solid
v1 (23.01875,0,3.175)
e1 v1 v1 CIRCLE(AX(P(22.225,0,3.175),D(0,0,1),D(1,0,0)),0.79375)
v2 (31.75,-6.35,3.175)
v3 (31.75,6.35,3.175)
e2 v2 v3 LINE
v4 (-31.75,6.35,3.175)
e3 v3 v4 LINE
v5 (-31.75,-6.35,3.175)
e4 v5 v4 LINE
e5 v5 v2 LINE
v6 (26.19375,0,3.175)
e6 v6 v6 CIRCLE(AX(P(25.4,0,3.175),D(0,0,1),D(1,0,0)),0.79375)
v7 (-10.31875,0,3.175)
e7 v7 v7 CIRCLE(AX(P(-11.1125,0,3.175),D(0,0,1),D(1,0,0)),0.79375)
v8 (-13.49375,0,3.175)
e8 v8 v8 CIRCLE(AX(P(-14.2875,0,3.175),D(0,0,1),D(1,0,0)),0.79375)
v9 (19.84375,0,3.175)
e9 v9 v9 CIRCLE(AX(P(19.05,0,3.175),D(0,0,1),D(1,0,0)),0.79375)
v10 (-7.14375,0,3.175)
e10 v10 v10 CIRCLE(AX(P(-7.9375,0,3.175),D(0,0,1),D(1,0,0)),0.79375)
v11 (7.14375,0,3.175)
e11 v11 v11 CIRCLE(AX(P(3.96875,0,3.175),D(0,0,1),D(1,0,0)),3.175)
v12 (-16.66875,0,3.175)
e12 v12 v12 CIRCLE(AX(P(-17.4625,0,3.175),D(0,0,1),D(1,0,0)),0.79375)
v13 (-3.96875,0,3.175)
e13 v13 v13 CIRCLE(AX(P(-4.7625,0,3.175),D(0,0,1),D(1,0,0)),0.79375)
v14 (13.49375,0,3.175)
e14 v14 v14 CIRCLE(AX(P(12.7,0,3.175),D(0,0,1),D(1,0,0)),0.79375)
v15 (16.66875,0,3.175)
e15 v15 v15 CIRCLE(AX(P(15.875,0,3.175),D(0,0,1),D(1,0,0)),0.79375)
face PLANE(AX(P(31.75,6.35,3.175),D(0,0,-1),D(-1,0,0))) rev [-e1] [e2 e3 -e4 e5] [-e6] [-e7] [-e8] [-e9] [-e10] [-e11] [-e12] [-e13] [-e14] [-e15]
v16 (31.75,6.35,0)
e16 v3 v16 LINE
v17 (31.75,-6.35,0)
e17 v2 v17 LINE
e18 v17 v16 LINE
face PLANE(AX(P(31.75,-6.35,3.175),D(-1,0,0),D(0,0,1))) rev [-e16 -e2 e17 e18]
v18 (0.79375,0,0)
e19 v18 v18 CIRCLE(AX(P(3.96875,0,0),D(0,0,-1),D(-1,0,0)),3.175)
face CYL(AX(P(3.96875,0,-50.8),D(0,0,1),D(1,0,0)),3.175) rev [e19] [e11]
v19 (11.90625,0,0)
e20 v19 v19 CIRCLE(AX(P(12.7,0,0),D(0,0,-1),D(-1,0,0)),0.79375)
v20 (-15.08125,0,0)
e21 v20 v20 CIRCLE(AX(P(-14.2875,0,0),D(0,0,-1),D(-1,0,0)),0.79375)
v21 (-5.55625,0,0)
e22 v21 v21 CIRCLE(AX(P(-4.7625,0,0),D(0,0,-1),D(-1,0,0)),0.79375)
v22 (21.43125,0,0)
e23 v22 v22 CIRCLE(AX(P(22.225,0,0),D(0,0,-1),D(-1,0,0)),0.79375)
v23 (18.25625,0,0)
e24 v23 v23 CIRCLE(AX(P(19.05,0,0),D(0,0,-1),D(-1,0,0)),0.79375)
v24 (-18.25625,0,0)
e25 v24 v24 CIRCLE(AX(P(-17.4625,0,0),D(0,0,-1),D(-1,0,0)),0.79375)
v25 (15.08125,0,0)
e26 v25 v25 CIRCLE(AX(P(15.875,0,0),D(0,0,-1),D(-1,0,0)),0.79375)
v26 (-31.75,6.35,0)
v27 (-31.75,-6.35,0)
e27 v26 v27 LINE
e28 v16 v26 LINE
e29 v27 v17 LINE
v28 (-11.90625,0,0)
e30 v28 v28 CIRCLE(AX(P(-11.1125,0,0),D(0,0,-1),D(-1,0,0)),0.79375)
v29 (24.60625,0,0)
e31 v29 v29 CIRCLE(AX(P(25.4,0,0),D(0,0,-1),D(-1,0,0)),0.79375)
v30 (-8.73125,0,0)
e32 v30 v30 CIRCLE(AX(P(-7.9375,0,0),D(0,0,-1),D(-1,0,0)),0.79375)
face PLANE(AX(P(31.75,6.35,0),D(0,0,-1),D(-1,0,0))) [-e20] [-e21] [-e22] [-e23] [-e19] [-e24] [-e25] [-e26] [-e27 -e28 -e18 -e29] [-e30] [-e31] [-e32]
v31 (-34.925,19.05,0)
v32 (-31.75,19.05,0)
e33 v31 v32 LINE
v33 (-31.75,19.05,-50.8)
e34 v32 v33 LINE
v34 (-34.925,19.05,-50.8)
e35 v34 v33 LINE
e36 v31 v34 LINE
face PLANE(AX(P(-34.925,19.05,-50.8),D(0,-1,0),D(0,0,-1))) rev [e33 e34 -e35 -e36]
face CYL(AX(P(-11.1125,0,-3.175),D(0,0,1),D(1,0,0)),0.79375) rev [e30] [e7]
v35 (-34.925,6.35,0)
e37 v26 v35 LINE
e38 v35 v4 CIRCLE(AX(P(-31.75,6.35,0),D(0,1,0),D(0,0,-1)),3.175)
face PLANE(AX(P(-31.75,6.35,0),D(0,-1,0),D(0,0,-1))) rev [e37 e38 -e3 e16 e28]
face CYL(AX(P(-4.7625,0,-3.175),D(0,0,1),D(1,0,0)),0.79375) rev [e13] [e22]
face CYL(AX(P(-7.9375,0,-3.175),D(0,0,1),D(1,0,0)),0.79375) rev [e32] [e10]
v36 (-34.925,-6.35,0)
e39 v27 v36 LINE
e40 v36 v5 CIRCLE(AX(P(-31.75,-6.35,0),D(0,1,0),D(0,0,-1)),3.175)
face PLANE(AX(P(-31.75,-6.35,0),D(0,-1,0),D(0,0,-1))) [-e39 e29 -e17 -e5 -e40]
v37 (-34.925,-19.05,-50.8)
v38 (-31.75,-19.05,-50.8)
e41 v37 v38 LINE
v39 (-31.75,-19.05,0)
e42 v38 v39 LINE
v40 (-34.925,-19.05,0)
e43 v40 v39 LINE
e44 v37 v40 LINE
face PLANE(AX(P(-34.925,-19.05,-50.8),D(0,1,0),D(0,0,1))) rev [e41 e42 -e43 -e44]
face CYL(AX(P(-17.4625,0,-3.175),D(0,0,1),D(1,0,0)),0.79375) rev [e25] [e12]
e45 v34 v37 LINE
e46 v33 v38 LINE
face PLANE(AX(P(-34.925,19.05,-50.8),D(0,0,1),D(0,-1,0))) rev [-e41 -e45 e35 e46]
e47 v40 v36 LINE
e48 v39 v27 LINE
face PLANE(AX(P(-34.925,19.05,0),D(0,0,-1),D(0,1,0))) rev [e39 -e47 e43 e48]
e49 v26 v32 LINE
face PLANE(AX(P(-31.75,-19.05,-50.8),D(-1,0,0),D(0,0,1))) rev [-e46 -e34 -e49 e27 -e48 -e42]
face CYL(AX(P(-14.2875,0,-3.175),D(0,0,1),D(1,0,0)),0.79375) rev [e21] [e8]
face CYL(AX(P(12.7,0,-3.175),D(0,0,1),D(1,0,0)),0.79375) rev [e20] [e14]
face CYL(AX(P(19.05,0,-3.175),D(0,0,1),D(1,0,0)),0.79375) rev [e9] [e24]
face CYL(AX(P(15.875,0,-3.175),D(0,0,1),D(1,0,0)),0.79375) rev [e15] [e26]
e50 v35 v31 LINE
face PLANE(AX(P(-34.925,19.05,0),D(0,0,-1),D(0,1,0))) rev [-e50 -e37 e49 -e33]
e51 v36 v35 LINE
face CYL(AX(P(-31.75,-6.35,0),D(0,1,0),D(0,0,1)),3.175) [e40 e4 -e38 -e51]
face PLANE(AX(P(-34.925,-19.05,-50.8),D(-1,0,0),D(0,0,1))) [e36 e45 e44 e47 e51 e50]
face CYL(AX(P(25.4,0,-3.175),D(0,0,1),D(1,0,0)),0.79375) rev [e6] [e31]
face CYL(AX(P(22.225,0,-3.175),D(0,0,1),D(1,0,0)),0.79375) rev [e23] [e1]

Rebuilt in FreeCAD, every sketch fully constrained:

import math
import FreeCAD as App
import Part
import Sketcher

V = App.Vector
Q = App.Units.Quantity


def add_polygon(sketch, points):
    """Adds a closed chain of lines whose ends are joined by coincident constraints."""
    first, n = sketch.GeometryCount, len(points)
    for a, b in zip(points, points[1:] + points[:1]):
        sketch.addGeometry(Part.LineSegment(App.Vector(*a, 0), App.Vector(*b, 0)), False)
    for i in range(n):
        sketch.addConstraint(Sketcher.Constraint("Coincident", first + i, 2, first + (i + 1) % n, 1))

doc = App.newDocument("Part")
body = doc.addObject("PartDesign::Body", "Body")

# Sketch on XY plane
sketch1 = body.newObject("Sketcher::SketchObject", "Sketch")
sketch1.AttachmentSupport = (doc.getObject("XY_Plane"), [""])
sketch1.MapMode = "FlatFace"
add_polygon(sketch1, [(-32, 6), (-32, -6), (32, -6), (32, 6)])  # lines 0-3
sketch1.addConstraint(Sketcher.Constraint("Vertical", 0))
sketch1.addConstraint(Sketcher.Constraint("Horizontal", 1))
sketch1.addConstraint(Sketcher.Constraint("Vertical", 2))
sketch1.addConstraint(Sketcher.Constraint("Horizontal", 3))
sketch1.addConstraint(Sketcher.Constraint("Symmetric", 0, 2, 2, 2, -1, 1))
sketch1.addConstraint(Sketcher.Constraint("DistanceX", 1, 1, 1, 2, Q("2.5 in")))
sketch1.addConstraint(Sketcher.Constraint("DistanceY", 0, 2, 0, 1, Q("0.5 in")))
pad1 = body.newObject("PartDesign::Pad", "Pad")
pad1.Profile = sketch1
pad1.Length = Q("0.125 in")
body2 = doc.addObject("PartDesign::Body", "Body001")

# Sketch on YZ plane
sketch2 = body2.newObject("Sketcher::SketchObject", "Sketch001")
sketch2.AttachmentSupport = (doc.getObject("YZ_Plane001"), [""])
sketch2.MapMode = "FlatFace"
sketch2.AttachmentOffset = App.Placement(V(0, 0, -1.25 * 25.4), App.Rotation())
add_polygon(sketch2, [(19, -51), (-19, -51), (-19, 0), (19, 0)])  # lines 0-3
sketch2.addConstraint(Sketcher.Constraint("Horizontal", 0))
sketch2.addConstraint(Sketcher.Constraint("Vertical", 1))
sketch2.addConstraint(Sketcher.Constraint("Horizontal", 2))
sketch2.addConstraint(Sketcher.Constraint("Vertical", 3))
sketch2.addConstraint(Sketcher.Constraint("Symmetric", 1, 2, 2, 2, -1, 1))
sketch2.addConstraint(Sketcher.Constraint("DistanceY", 1, 1, 1, 2, Q("2 in")))
sketch2.addConstraint(Sketcher.Constraint("DistanceX", 0, 2, 0, 1, Q("1.5 in")))
pad2 = body2.newObject("PartDesign::Pad", "Pad001")
pad2.Profile = sketch2
pad2.Length = Q("0.125 in")
pad2.Reversed = True
body.AllowCompound = True
doc.recompute()

boolean = body.newObject("PartDesign::Boolean", "Boolean")
boolean.Type = "Fuse"
boolean.addObjects([body2])

# Sketch on XZ plane
sketch3 = body.newObject("Sketcher::SketchObject", "Sketch002")
sketch3.AttachmentSupport = (doc.getObject("XZ_Plane"), [""])
sketch3.MapMode = "FlatFace"
sketch3.AttachmentOffset = App.Placement(V(0, 0, -0.25 * 25.4), App.Rotation())
sketch3.addGeometry(Part.LineSegment(V(-31.8, 0, 0), V(-34.9, 0, 0)), False)
sketch3.addGeometry(Part.ArcOfCircle(Part.Circle(V(-31.7, 0, 0), V(0, 0, 1), 3.2), math.radians(90), math.radians(180)), False)
sketch3.addGeometry(Part.LineSegment(V(-31.8, 3.2, 0), V(-31.8, 0, 0)), False)
sketch3.addConstraint(Sketcher.Constraint("Coincident", 0, 2, 1, 2))
sketch3.addConstraint(Sketcher.Constraint("Coincident", 1, 1, 2, 1))
sketch3.addConstraint(Sketcher.Constraint("Coincident", 2, 2, 0, 1))
sketch3.addConstraint(Sketcher.Constraint("Horizontal", 0))
sketch3.addConstraint(Sketcher.Constraint("Vertical", 2))
sketch3.addConstraint(Sketcher.Constraint("Coincident", 2, 2, 1, 3))
sketch3.addConstraint(Sketcher.Constraint("PointOnObject", 1, 3, -1))
sketch3.addConstraint(Sketcher.Constraint("Radius", 1, Q("0.125 in")))
sketch3.addConstraint(Sketcher.Constraint("DistanceX", 1, 3, -1, 1, Q("1.25 in")))
pad3 = body.newObject("PartDesign::Pad", "Pad002")
pad3.Profile = sketch3
pad3.Length = Q("0.5 in")

# Sketch on XY plane
sketch4 = body.newObject("Sketcher::SketchObject", "Sketch003")
sketch4.AttachmentSupport = (doc.getObject("XY_Plane"), [""])
sketch4.MapMode = "FlatFace"
sketch4.AttachmentOffset = App.Placement(V(0, 0, 0.125 * 25.4), App.Rotation())
sketch4.addGeometry(Part.Circle(V(25.4, 0, 0), V(0, 0, 1), 0.8), False)
sketch4.addConstraint(Sketcher.Constraint("PointOnObject", 0, 3, -1))
sketch4.addConstraint(Sketcher.Constraint("Diameter", 0, Q("0.0625 in")))
sketch4.addConstraint(Sketcher.Constraint("DistanceX", -1, 1, 0, 3, Q("1 in")))
pocket1 = body.newObject("PartDesign::Pocket", "Pocket")
pocket1.Profile = sketch4
pocket1.Length = Q("0.25 in")
doc.recompute()

linearpattern = body.newObject("PartDesign::LinearPattern", "LinearPattern")
linearpattern.Originals = [pocket1]
linearpattern.Direction = (doc.getObject("X_Axis"), [""])
linearpattern.Mode = "offset"
linearpattern.Offset = Q("0.125 in")
linearpattern.Occurrences = 5
linearpattern.Reversed = True
body.Tip = linearpattern

# Sketch on XY plane
sketch5 = body.newObject("Sketcher::SketchObject", "Sketch004")
sketch5.AttachmentSupport = (doc.getObject("XY_Plane"), [""])
sketch5.MapMode = "FlatFace"
sketch5.AttachmentOffset = App.Placement(V(0, 0, 0.125 * 25.4), App.Rotation())
sketch5.addGeometry(Part.Circle(V(-4.8, 0, 0), V(0, 0, 1), 0.8), False)
sketch5.addConstraint(Sketcher.Constraint("PointOnObject", 0, 3, -1))
sketch5.addConstraint(Sketcher.Constraint("Diameter", 0, Q("0.0625 in")))
sketch5.addConstraint(Sketcher.Constraint("DistanceX", 0, 3, -1, 1, Q("0.1875 in")))
pocket2 = body.newObject("PartDesign::Pocket", "Pocket001")
pocket2.Profile = sketch5
pocket2.Length = Q("0.25 in")
doc.recompute()

linearpattern2 = body.newObject("PartDesign::LinearPattern", "LinearPattern001")
linearpattern2.Originals = [pocket2]
linearpattern2.Direction = (doc.getObject("X_Axis"), [""])
linearpattern2.Mode = "offset"
linearpattern2.Offset = Q("0.125 in")
linearpattern2.Occurrences = 5
linearpattern2.Reversed = True
body.Tip = linearpattern2

# Sketch on XY plane
sketch6 = body.newObject("Sketcher::SketchObject", "Sketch005")
sketch6.AttachmentSupport = (doc.getObject("XY_Plane"), [""])
sketch6.MapMode = "FlatFace"
sketch6.AttachmentOffset = App.Placement(V(0, 0, 0.125 * 25.4), App.Rotation())
sketch6.addGeometry(Part.Circle(V(4, 0, 0), V(0, 0, 1), 3.2), False)
sketch6.addConstraint(Sketcher.Constraint("PointOnObject", 0, 3, -1))
sketch6.addConstraint(Sketcher.Constraint("Diameter", 0, Q("0.25 in")))
sketch6.addConstraint(Sketcher.Constraint("DistanceX", -1, 1, 0, 3, Q("0.15625 in")))
pocket3 = body.newObject("PartDesign::Pocket", "Pocket002")
pocket3.Profile = sketch6
pocket3.Type = "ThroughAll"

doc.recompute()
